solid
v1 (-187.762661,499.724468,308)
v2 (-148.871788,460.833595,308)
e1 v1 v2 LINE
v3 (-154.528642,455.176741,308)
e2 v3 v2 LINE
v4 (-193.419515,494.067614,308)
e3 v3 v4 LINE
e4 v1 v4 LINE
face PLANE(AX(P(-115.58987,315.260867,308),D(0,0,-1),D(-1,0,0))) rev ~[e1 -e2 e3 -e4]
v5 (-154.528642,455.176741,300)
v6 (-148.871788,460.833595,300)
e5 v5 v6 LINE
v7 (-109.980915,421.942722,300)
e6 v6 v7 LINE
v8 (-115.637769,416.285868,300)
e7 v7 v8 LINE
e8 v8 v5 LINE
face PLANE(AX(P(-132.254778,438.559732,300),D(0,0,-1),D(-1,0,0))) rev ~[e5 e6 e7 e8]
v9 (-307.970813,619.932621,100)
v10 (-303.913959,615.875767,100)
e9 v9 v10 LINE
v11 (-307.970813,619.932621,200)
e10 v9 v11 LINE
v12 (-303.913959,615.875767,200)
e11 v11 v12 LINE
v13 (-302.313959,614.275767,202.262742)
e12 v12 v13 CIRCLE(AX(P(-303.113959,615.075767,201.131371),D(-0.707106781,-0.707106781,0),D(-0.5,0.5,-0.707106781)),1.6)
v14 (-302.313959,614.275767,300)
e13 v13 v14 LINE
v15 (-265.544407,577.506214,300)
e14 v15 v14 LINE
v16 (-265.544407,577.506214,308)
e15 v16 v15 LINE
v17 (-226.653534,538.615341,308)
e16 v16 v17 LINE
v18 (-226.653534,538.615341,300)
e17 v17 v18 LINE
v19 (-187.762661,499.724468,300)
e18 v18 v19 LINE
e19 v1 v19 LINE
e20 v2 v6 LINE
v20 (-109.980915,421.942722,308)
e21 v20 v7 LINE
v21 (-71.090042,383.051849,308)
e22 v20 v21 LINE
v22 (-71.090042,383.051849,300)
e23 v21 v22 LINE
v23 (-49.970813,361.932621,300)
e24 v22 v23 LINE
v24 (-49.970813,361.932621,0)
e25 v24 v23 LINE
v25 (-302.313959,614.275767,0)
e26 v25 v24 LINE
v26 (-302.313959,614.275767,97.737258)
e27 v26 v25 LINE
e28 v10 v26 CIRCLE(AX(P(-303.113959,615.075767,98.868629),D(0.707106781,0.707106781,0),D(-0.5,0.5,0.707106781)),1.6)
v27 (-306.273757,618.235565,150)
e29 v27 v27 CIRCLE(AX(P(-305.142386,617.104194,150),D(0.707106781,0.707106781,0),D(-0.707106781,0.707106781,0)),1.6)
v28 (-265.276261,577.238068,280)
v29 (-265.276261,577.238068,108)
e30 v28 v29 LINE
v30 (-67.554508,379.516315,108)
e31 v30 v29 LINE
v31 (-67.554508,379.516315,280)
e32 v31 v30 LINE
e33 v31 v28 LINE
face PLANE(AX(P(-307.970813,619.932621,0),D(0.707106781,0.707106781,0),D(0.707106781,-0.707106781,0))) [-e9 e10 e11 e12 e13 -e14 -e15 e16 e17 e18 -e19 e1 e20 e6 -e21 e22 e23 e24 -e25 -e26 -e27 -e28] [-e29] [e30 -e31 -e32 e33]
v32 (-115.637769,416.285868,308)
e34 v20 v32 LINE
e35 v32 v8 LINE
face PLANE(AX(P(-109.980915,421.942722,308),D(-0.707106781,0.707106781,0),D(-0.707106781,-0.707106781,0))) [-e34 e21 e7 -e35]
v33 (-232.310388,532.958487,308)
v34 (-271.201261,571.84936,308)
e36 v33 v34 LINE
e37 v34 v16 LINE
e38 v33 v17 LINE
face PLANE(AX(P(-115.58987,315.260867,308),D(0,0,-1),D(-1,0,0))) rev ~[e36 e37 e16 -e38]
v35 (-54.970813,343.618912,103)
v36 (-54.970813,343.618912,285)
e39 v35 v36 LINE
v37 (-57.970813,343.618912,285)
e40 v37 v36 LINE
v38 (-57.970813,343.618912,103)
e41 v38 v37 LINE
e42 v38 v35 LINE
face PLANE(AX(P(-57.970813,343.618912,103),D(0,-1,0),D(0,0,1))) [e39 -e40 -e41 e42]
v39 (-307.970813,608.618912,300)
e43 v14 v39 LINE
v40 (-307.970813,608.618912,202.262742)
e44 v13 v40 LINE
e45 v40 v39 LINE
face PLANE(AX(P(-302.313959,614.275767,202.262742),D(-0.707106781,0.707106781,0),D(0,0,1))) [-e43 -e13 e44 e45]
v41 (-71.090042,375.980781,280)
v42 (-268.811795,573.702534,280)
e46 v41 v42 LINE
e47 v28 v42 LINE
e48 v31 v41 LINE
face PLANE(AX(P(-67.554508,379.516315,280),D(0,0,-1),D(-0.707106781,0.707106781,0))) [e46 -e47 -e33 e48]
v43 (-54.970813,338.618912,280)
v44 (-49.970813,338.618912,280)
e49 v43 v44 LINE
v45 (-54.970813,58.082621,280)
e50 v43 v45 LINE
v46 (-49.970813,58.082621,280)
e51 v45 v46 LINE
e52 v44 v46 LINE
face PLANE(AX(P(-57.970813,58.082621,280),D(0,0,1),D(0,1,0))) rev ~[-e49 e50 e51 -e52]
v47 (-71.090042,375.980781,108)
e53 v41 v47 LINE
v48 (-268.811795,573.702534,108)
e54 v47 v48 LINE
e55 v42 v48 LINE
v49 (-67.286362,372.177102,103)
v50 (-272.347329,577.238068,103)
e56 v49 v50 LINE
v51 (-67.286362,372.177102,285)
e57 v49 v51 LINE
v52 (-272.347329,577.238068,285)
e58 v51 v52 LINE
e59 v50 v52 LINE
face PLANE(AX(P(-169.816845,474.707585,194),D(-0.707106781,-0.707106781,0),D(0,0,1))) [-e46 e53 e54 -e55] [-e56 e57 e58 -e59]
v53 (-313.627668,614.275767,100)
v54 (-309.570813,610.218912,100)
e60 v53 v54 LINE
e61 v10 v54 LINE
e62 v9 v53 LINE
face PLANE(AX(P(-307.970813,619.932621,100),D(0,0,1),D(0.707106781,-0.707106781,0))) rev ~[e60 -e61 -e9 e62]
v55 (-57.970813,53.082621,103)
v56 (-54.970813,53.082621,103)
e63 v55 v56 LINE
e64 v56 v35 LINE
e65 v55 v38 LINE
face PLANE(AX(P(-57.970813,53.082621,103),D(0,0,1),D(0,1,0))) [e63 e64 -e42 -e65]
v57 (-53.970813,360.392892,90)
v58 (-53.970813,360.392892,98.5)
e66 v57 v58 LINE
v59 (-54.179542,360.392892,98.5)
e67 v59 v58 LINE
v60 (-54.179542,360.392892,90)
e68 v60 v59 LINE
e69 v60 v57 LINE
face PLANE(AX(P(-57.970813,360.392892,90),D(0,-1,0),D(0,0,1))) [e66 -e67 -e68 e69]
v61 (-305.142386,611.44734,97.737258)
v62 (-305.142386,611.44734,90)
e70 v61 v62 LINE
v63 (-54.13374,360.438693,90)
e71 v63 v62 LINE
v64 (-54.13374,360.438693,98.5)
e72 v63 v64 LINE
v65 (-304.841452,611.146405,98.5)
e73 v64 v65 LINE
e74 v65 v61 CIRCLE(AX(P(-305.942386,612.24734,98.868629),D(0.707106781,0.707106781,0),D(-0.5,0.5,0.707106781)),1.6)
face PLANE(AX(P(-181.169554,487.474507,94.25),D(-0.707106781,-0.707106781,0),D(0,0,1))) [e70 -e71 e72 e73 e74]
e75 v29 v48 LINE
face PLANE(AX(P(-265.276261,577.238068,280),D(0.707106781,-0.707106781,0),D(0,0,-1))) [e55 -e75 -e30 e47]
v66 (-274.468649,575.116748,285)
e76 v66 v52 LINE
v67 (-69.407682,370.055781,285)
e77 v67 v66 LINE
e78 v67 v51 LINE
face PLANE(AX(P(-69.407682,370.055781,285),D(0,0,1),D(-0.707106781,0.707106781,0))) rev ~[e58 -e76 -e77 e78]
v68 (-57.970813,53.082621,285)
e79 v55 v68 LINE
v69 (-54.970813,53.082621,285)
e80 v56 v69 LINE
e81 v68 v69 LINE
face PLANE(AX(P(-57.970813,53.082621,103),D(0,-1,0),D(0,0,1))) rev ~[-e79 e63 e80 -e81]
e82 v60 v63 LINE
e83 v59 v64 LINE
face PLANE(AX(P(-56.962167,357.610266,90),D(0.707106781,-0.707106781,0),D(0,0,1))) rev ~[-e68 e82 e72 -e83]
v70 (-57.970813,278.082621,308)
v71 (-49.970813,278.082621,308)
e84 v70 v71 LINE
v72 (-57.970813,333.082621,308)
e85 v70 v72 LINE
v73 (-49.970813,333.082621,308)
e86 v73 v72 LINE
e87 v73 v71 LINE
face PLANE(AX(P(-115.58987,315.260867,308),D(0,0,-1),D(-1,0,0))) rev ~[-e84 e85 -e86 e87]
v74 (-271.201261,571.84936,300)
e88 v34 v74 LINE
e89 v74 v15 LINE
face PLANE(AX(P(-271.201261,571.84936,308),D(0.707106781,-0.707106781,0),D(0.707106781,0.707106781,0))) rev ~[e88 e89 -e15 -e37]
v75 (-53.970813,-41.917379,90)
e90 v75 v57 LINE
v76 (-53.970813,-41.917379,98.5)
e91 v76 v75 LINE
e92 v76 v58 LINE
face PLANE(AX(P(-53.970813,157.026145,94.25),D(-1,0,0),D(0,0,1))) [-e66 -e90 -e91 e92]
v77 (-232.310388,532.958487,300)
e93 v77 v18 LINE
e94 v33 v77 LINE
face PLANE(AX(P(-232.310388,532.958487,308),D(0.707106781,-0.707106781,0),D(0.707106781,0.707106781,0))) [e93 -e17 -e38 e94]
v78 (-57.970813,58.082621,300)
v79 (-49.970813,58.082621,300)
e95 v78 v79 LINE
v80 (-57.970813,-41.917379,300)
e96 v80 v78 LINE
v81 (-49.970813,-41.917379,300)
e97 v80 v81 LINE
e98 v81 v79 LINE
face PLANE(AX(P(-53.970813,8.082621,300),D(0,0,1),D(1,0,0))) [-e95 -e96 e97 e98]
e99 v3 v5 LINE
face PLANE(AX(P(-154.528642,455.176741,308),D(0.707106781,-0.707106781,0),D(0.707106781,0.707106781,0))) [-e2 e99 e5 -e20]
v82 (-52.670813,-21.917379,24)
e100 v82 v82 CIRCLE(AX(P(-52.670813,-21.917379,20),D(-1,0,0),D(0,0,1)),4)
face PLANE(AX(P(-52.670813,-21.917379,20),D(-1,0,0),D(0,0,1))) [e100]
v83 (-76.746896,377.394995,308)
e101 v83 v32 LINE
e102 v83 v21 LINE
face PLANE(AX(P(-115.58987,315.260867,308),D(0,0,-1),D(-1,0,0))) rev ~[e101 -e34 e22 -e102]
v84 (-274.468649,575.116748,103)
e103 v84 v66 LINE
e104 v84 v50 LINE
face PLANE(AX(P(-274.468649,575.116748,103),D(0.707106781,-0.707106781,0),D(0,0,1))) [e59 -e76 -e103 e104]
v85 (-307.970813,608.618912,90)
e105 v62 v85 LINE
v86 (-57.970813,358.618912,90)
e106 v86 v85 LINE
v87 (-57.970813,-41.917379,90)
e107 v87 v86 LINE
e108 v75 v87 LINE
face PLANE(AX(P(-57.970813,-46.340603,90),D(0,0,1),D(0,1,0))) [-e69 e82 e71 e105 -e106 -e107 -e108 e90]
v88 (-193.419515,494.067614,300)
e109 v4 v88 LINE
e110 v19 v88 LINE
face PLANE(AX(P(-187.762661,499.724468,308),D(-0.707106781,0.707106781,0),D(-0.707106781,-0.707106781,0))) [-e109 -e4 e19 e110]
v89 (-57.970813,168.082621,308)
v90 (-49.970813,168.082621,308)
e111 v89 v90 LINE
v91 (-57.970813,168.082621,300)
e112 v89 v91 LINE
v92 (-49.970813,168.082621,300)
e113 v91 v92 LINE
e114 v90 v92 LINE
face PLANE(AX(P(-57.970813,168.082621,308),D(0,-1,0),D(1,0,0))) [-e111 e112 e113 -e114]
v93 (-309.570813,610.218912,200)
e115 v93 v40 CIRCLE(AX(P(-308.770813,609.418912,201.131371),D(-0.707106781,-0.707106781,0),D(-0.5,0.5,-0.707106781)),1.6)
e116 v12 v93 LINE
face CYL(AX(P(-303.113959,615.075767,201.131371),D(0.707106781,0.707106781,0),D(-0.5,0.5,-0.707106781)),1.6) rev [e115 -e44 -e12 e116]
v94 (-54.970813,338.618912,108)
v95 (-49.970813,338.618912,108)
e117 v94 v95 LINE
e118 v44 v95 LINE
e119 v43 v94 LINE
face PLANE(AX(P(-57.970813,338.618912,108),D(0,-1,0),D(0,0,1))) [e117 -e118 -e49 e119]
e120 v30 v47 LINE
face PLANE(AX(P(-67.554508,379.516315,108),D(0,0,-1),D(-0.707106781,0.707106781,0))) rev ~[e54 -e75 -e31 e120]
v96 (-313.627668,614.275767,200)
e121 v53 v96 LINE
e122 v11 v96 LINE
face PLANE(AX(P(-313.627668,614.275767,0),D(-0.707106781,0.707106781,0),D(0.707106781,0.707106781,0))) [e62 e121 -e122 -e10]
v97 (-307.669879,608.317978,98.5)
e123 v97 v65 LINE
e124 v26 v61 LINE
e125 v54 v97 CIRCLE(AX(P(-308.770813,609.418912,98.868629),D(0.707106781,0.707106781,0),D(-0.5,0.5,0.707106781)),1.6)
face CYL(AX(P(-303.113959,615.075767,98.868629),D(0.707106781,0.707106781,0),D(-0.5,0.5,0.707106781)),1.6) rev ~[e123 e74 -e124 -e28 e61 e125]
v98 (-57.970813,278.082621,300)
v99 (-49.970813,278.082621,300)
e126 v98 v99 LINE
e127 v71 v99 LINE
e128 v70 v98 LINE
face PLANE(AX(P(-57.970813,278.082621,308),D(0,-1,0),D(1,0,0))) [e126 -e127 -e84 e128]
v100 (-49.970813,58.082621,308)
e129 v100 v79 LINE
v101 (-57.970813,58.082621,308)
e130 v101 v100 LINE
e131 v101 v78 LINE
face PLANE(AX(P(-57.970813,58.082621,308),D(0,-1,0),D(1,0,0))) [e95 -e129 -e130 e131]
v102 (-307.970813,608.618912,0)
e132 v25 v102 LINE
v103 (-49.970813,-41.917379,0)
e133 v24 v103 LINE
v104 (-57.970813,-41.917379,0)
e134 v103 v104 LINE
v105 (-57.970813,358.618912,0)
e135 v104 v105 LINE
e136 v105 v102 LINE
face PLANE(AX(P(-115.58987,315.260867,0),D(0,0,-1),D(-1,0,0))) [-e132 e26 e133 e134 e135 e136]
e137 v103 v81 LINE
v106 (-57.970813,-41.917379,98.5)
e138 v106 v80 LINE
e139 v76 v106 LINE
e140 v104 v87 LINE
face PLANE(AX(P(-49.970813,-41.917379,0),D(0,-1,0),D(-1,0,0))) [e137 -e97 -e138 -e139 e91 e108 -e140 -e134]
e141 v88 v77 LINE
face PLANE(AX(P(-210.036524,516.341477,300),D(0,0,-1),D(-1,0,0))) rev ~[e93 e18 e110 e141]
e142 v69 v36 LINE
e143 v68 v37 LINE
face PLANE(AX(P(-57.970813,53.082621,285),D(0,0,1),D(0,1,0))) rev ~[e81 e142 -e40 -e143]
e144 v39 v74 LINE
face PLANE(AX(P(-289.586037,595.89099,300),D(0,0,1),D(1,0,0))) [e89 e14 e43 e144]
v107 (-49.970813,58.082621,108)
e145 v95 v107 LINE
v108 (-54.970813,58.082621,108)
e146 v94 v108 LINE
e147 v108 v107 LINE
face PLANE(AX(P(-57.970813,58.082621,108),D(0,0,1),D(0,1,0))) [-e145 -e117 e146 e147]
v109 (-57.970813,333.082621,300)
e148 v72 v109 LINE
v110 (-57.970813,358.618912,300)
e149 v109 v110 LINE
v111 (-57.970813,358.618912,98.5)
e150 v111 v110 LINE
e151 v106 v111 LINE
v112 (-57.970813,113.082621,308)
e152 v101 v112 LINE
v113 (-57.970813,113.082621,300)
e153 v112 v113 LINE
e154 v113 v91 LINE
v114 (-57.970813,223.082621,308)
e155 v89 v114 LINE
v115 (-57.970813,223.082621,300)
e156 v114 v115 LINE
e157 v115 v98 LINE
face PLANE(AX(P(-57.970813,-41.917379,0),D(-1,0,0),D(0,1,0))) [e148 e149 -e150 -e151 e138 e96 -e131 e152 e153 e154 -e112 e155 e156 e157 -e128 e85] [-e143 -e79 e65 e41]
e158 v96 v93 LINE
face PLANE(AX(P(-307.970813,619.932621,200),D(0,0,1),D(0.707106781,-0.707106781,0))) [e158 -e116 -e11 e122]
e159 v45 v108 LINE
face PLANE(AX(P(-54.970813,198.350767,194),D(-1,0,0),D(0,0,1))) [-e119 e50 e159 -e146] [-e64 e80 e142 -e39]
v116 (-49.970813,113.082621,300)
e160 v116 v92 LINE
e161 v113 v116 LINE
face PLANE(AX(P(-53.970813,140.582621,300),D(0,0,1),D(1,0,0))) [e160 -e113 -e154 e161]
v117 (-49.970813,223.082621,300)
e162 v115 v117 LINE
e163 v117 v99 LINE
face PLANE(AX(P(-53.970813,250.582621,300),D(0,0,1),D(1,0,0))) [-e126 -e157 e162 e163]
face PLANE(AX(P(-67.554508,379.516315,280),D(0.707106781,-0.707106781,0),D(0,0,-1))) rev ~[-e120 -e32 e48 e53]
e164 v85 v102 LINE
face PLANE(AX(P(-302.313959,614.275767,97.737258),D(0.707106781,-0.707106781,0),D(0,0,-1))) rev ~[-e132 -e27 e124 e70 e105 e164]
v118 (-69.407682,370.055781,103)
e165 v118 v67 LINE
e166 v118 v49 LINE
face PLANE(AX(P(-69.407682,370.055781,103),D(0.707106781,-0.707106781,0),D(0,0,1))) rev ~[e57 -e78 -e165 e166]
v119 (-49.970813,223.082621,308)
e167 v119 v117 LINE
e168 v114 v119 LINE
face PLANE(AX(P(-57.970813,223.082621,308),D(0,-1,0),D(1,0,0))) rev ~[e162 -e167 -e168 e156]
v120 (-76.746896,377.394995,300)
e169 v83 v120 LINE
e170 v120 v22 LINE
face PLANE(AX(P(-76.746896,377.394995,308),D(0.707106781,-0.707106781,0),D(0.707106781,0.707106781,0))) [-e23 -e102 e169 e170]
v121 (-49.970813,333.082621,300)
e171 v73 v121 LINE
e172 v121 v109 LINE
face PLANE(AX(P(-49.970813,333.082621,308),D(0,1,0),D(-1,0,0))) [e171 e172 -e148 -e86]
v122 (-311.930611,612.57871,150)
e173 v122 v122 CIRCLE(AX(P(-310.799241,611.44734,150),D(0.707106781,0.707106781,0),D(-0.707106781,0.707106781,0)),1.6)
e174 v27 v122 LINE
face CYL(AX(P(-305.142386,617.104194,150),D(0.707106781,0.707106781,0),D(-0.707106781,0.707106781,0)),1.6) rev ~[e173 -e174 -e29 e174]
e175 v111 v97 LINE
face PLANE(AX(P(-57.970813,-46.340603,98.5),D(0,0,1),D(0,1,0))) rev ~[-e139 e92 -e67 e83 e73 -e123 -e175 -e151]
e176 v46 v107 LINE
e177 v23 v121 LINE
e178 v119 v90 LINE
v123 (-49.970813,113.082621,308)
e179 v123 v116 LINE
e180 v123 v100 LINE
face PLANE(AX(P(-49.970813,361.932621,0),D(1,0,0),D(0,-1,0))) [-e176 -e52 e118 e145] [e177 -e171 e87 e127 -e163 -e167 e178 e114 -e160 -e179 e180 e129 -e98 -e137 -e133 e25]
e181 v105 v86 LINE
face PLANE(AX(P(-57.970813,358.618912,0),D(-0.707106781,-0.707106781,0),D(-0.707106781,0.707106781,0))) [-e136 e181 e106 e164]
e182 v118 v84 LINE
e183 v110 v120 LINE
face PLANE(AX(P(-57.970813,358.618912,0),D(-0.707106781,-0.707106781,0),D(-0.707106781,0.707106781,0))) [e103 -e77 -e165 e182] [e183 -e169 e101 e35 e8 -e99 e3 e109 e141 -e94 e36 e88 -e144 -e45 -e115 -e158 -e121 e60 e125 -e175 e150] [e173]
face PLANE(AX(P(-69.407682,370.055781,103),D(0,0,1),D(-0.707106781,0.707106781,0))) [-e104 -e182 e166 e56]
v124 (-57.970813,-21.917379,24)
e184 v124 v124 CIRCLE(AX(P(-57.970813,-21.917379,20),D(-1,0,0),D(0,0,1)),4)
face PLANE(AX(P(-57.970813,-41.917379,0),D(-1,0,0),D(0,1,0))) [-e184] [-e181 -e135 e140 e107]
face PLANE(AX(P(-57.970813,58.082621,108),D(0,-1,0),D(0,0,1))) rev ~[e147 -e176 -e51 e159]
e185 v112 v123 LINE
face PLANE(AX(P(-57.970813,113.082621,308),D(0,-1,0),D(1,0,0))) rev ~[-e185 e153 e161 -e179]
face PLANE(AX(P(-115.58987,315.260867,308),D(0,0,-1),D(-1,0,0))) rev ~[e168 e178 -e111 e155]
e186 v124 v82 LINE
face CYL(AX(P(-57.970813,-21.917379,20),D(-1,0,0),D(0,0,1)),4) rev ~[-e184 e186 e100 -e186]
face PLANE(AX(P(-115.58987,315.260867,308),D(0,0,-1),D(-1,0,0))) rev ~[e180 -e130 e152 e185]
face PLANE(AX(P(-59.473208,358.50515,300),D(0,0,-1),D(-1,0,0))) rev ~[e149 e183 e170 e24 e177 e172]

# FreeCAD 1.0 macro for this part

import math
import FreeCAD as App
import Part
import Sketcher
from FreeCAD import Vector
Q = App.Units.Quantity

doc = App.newDocument("Part")
params = doc.addObject("Spreadsheet::Sheet", "Params")
for row, (alias, value) in enumerate([
    ("sketch1_width", "8 mm"),
    ("sketch1_length", "8 mm"),
    ("sketch1_height", "403.85 mm"),
    ("pad1_length", "308 mm"),
    ("sketch2_width", "8 mm"),
    ("sketch2_height", "100 mm"),
    ("sketch2_height2", "55 mm"),
    ("sketch2_length", "8 mm"),
    ("sketch2_length2", "60 mm"),
    ("pocket1_length", "8 mm"),
    ("sketch3_height", "172 mm"),
    ("pocket2_length", "532 mm"),
    ("sketch4_diameter", "3.2 mm"),
    ("sketch4_width", "100 mm"),
    ("sketch4_width2", "172 mm"),
    ("sketch4_height", "8 mm"),
    ("pocket3_length", "8 mm"),
    ("sketch5_height", "182 mm"),
    ("pocket4_length", "3 mm"),
    ("sketch6_width", "182 mm"),
    ("sketch6_height", "290 mm"),
    ("pocket5_length", "3 mm"),
    ("sketch7_diameter", "8 mm"),
    ("pocket6_length", "5.3 mm"),
    ("sketch8_height", "8.5 mm"),
    ("pocket7_length", "4 mm"),
    ("sketch9_width", "8.5 mm"),
    ("pocket8_length", "4 mm"),
], start=1):
    params.set(f"A{row}", alias)
    params.set(f"B{row}", "=" + value)
    params.setAlias(f"B{row}", alias)

body = doc.addObject("PartDesign::Body", "Body")

# Sketch on XY plane
sketch1 = body.newObject("Sketcher::SketchObject", "Sketch")
sketch1.AttachmentSupport = (doc.getObject("XY_Plane"), [""])
sketch1.MapMode = "FlatFace"
sketch1.addGeometry([
    Part.LineSegment(Vector(-57.970813, -41.917379, 0), Vector(-49.970813, -41.917379, 0)),  # 0
    Part.LineSegment(Vector(-49.970813, -41.917379, 0), Vector(-49.970813, 361.932621, 0)),  # 1
    Part.LineSegment(Vector(-49.970813, 361.932621, 0), Vector(-307.970813, 619.932621, 0)),  # 2
    Part.LineSegment(Vector(-307.970813, 619.932621, 0), Vector(-313.627668, 614.275767, 0)),  # 3
    Part.LineSegment(Vector(-313.627668, 614.275767, 0), Vector(-57.970813, 358.618912, 0)),  # 4
    Part.LineSegment(Vector(-57.970813, 358.618912, 0), Vector(-57.970813, -41.917379, 0)),  # 5
], False)
sketch1.addConstraint([
    Sketcher.Constraint("Coincident", 0, 2, 1, 1),
    Sketcher.Constraint("Coincident", 1, 2, 2, 1),
    Sketcher.Constraint("Coincident", 2, 2, 3, 1),
    Sketcher.Constraint("Coincident", 3, 2, 4, 1),
    Sketcher.Constraint("Coincident", 4, 2, 5, 1),
    Sketcher.Constraint("Coincident", 5, 2, 0, 1),
    Sketcher.Constraint("Horizontal", 0),
    Sketcher.Constraint("Vertical", 1),
    Sketcher.Constraint("Vertical", 5),
    Sketcher.Constraint("Perpendicular", 2, 3),
    Sketcher.Constraint("Perpendicular", 3, 4),
    Sketcher.Constraint("DistanceX", 0, 1, 0, 2, Q("8 mm")),
    Sketcher.Constraint("Angle", 2, Q("135 deg")),
    Sketcher.Constraint("Distance", 3, Q("8 mm")),
    Sketcher.Constraint("DistanceX", 2, 2, 1, 2, Q("258 mm")),
    Sketcher.Constraint("DistanceY", 1, 1, 1, 2, Q("403.85 mm")),
    Sketcher.Constraint("DistanceY", 0, 2, -1, 1, Q("41.917379 mm")),
    Sketcher.Constraint("DistanceX", 0, 2, -1, 1, Q("49.970813 mm")),
])
sketch1.setExpression("Constraints[11]", "Params.sketch1_width")
sketch1.setExpression("Constraints[13]", "Params.sketch1_length")
sketch1.setExpression("Constraints[15]", "Params.sketch1_height")
pad1 = body.newObject("PartDesign::Pad", "Pad")
pad1.Profile = sketch1
pad1.setExpression("Length", "Params.pad1_length")

# Sketch on XY plane
sketch2 = body.newObject("Sketcher::SketchObject", "Sketch001")
sketch2.AttachmentSupport = (doc.getObject("XY_Plane"), [""])
sketch2.MapMode = "FlatFace"
sketch2.AttachmentOffset = App.Placement(Vector(0, 0, 308), App.Rotation())
sketch2.addGeometry([
    Part.LineSegment(Vector(-57.970813, 58.082621, 0), Vector(-57.970813, -41.917379, 0)),  # 0
    Part.LineSegment(Vector(-57.970813, -41.917379, 0), Vector(-49.970813, -41.917379, 0)),  # 1
    Part.LineSegment(Vector(-49.970813, -41.917379, 0), Vector(-49.970813, 58.082621, 0)),  # 2
    Part.LineSegment(Vector(-49.970813, 58.082621, 0), Vector(-57.970813, 58.082621, 0)),  # 3
    Part.LineSegment(Vector(-271.201261, 571.84936, 0), Vector(-265.544407, 577.506214, 0)),  # 4
    Part.LineSegment(Vector(-265.544407, 577.506214, 0), Vector(-307.970813, 619.932621, 0)),  # 5
    Part.LineSegment(Vector(-307.970813, 619.932621, 0), Vector(-313.627668, 614.275767, 0)),  # 6
    Part.LineSegment(Vector(-313.627668, 614.275767, 0), Vector(-271.201261, 571.84936, 0)),  # 7
    Part.LineSegment(Vector(-57.970813, 168.082621, 0), Vector(-57.970813, 113.082621, 0)),  # 8
    Part.LineSegment(Vector(-57.970813, 113.082621, 0), Vector(-49.970813, 113.082621, 0)),  # 9
    Part.LineSegment(Vector(-49.970813, 113.082621, 0), Vector(-49.970813, 168.082621, 0)),  # 10
    Part.LineSegment(Vector(-49.970813, 168.082621, 0), Vector(-57.970813, 168.082621, 0)),  # 11
    Part.LineSegment(Vector(-57.970813, 278.082621, 0), Vector(-57.970813, 223.082621, 0)),  # 12
    Part.LineSegment(Vector(-57.970813, 223.082621, 0), Vector(-49.970813, 223.082621, 0)),  # 13
    Part.LineSegment(Vector(-49.970813, 223.082621, 0), Vector(-49.970813, 278.082621, 0)),  # 14
    Part.LineSegment(Vector(-49.970813, 278.082621, 0), Vector(-57.970813, 278.082621, 0)),  # 15
    Part.LineSegment(Vector(-226.653534, 538.615341, 0), Vector(-232.310388, 532.958487, 0)),  # 16
    Part.LineSegment(Vector(-232.310388, 532.958487, 0), Vector(-193.419515, 494.067614, 0)),  # 17
    Part.LineSegment(Vector(-193.419515, 494.067614, 0), Vector(-187.762661, 499.724468, 0)),  # 18
    Part.LineSegment(Vector(-187.762661, 499.724468, 0), Vector(-226.653534, 538.615341, 0)),  # 19
    Part.LineSegment(Vector(-148.871788, 460.833595, 0), Vector(-154.528642, 455.176741, 0)),  # 20
    Part.LineSegment(Vector(-154.528642, 455.176741, 0), Vector(-115.637769, 416.285868, 0)),  # 21
    Part.LineSegment(Vector(-115.637769, 416.285868, 0), Vector(-109.980915, 421.942722, 0)),  # 22
    Part.LineSegment(Vector(-109.980915, 421.942722, 0), Vector(-148.871788, 460.833595, 0)),  # 23
    Part.LineSegment(Vector(-71.090042, 383.051849, 0), Vector(-76.746896, 377.394995, 0)),  # 24
    Part.LineSegment(Vector(-76.746896, 377.394995, 0), Vector(-57.970813, 358.618912, 0)),  # 25
    Part.LineSegment(Vector(-57.970813, 358.618912, 0), Vector(-57.970813, 333.082621, 0)),  # 26
    Part.LineSegment(Vector(-57.970813, 333.082621, 0), Vector(-49.970813, 333.082621, 0)),  # 27
    Part.LineSegment(Vector(-49.970813, 333.082621, 0), Vector(-49.970813, 361.932621, 0)),  # 28
    Part.LineSegment(Vector(-49.970813, 361.932621, 0), Vector(-71.090042, 383.051849, 0)),  # 29
], False)
sketch2.addConstraint([
    Sketcher.Constraint("Coincident", 0, 2, 1, 1),
    Sketcher.Constraint("Coincident", 1, 2, 2, 1),
    Sketcher.Constraint("Coincident", 2, 2, 3, 1),
    Sketcher.Constraint("Coincident", 3, 2, 0, 1),
    Sketcher.Constraint("Coincident", 4, 2, 5, 1),
    Sketcher.Constraint("Coincident", 5, 2, 6, 1),
    Sketcher.Constraint("Coincident", 6, 2, 7, 1),
    Sketcher.Constraint("Coincident", 7, 2, 4, 1),
    Sketcher.Constraint("Coincident", 8, 2, 9, 1),
    Sketcher.Constraint("Coincident", 9, 2, 10, 1),
    Sketcher.Constraint("Coincident", 10, 2, 11, 1),
    Sketcher.Constraint("Coincident", 11, 2, 8, 1),
    Sketcher.Constraint("Coincident", 12, 2, 13, 1),
    Sketcher.Constraint("Coincident", 13, 2, 14, 1),
    Sketcher.Constraint("Coincident", 14, 2, 15, 1),
    Sketcher.Constraint("Coincident", 15, 2, 12, 1),
    Sketcher.Constraint("Coincident", 16, 2, 17, 1),
    Sketcher.Constraint("Coincident", 17, 2, 18, 1),
    Sketcher.Constraint("Coincident", 18, 2, 19, 1),
    Sketcher.Constraint("Coincident", 19, 2, 16, 1),
    Sketcher.Constraint("Coincident", 20, 2, 21, 1),
    Sketcher.Constraint("Coincident", 21, 2, 22, 1),
    Sketcher.Constraint("Coincident", 22, 2, 23, 1),
    Sketcher.Constraint("Coincident", 23, 2, 20, 1),
    Sketcher.Constraint("Coincident", 24, 2, 25, 1),
    Sketcher.Constraint("Coincident", 25, 2, 26, 1),
    Sketcher.Constraint("Coincident", 26, 2, 27, 1),
    Sketcher.Constraint("Coincident", 27, 2, 28, 1),
    Sketcher.Constraint("Coincident", 28, 2, 29, 1),
    Sketcher.Constraint("Coincident", 29, 2, 24, 1),
    Sketcher.Constraint("Vertical", 0),
    Sketcher.Constraint("Horizontal", 1),
    Sketcher.Constraint("Vertical", 2),
    Sketcher.Constraint("Horizontal", 3),
    Sketcher.Constraint("Vertical", 8),
    Sketcher.Constraint("Horizontal", 9),
    Sketcher.Constraint("Vertical", 10),
    Sketcher.Constraint("Horizontal", 11),
    Sketcher.Constraint("Vertical", 12),
    Sketcher.Constraint("Horizontal", 13),
    Sketcher.Constraint("Vertical", 14),
    Sketcher.Constraint("Horizontal", 15),
    Sketcher.Constraint("Vertical", 26),
    Sketcher.Constraint("Horizontal", 27),
    Sketcher.Constraint("Vertical", 28),
    Sketcher.Constraint("Perpendicular", 4, 5),
    Sketcher.Constraint("Perpendicular", 5, 6),
    Sketcher.Constraint("Perpendicular", 6, 7),
    Sketcher.Constraint("Perpendicular", 7, 16),
    Sketcher.Constraint("Perpendicular", 16, 17),
    Sketcher.Constraint("Perpendicular", 17, 18),
    Sketcher.Constraint("Perpendicular", 18, 19),
    Sketcher.Constraint("Perpendicular", 19, 20),
    Sketcher.Constraint("Perpendicular", 20, 21),
    Sketcher.Constraint("Perpendicular", 21, 22),
    Sketcher.Constraint("Perpendicular", 22, 23),
    Sketcher.Constraint("Perpendicular", 23, 24),
    Sketcher.Constraint("Perpendicular", 24, 25),
    Sketcher.Constraint("Parallel", 25, 29),
    Sketcher.Constraint("Vertical", 3, 2, 8, 2),
    Sketcher.Constraint("Vertical", 2, 2, 9, 2),
    Sketcher.Constraint("Vertical", 11, 2, 12, 2),
    Sketcher.Constraint("Vertical", 10, 2, 13, 2),
    Sketcher.Constraint("Vertical", 15, 2, 25, 2),
    Sketcher.Constraint("Vertical", 14, 2, 27, 2),
    Sketcher.Constraint("Equal", 10, 12),
    Sketcher.Constraint("Equal", 6, 16),
    Sketcher.Constraint("Equal", 18, 20),
    Sketcher.Constraint("Equal", 19, 21),
    Sketcher.Constraint("Equal", 22, 24),
    Sketcher.Constraint("DistanceX", 1, 1, 1, 2, Q("8 mm")),
    Sketcher.Constraint("DistanceY", 0, 2, 0, 1, Q("100 mm")),
    Sketcher.Constraint("DistanceY", 8, 2, 8, 1, Q("55 mm")),
    Sketcher.Constraint("Angle", 4, Q("45 deg")),
    Sketcher.Constraint("Distance", 4, Q("8 mm")),
    Sketcher.Constraint("Distance", 5, Q("60 mm")),
    Sketcher.Constraint("Distance", 17, Q("55 mm")),
    Sketcher.Constraint("DistanceX", 5, 2, 3, 2, Q("250 mm")),
    Sketcher.Constraint("DistanceY", 3, 2, 8, 2, Q("55 mm")),
    Sketcher.Constraint("DistanceY", 11, 2, 12, 2, Q("55 mm")),
    Sketcher.Constraint("DistanceY", 15, 2, 26, 2, Q("55 mm")),
    Sketcher.Constraint("DistanceY", 28, 1, 28, 2, Q("28.85 mm")),
    Sketcher.Constraint("DistanceY", 3, 2, 5, 2, Q("561.85 mm")),
    Sketcher.Constraint("Distance", 29, Q("29.867099 mm")),
    Sketcher.Constraint("DistanceY", 17, 2, 4, 2, Q("83.4386 mm")),
    Sketcher.Constraint("DistanceX", 5, 2, 17, 2, Q("114.551299 mm")),
    Sketcher.Constraint("DistanceY", 20, 2, 19, 2, Q("83.4386 mm")),
    Sketcher.Constraint("DistanceX", 17, 2, 22, 2, Q("83.4386 mm")),
    Sketcher.Constraint("DistanceY", 0, 2, -1, 1, Q("41.917379 mm")),
    Sketcher.Constraint("DistanceX", 7, 2, -1, 1, Q("271.201261 mm")),
])
sketch2.setExpression("Constraints[70]", "Params.sketch2_width")
sketch2.setExpression("Constraints[71]", "Params.sketch2_height")
sketch2.setExpression("Constraints[72]", "Params.sketch2_height2")
sketch2.setExpression("Constraints[74]", "Params.sketch2_length")
sketch2.setExpression("Constraints[75]", "Params.sketch2_length2")
pocket1 = body.newObject("PartDesign::Pocket", "Pocket")
pocket1.Profile = sketch2
pocket1.setExpression("Length", "Params.pocket1_length")

# Sketch on YZ plane
sketch3 = body.newObject("Sketcher::SketchObject", "Sketch002")
sketch3.AttachmentSupport = (doc.getObject("YZ_Plane"), [""])
sketch3.MapMode = "FlatFace"
sketch3.AttachmentOffset = App.Placement(Vector(0, 0, -57.970813), App.Rotation())
sketch3.addGeometry([
    Part.LineSegment(Vector(338.618912, 108, 0), Vector(58.082621, 108, 0)),
    Part.LineSegment(Vector(58.082621, 108, 0), Vector(58.082621, 280, 0)),
    Part.LineSegment(Vector(58.082621, 280, 0), Vector(338.618912, 280, 0)),
    Part.LineSegment(Vector(338.618912, 280, 0), Vector(338.618912, 108, 0)),
], False)
sketch3.addConstraint([
    Sketcher.Constraint("Coincident", 0, 2, 1, 1),
    Sketcher.Constraint("Coincident", 1, 2, 2, 1),
    Sketcher.Constraint("Coincident", 2, 2, 3, 1),
    Sketcher.Constraint("Coincident", 3, 2, 0, 1),
    Sketcher.Constraint("Horizontal", 0),
    Sketcher.Constraint("Vertical", 1),
    Sketcher.Constraint("Horizontal", 2),
    Sketcher.Constraint("Vertical", 3),
    Sketcher.Constraint("DistanceY", 1, 1, 1, 2, Q("172 mm")),
    Sketcher.Constraint("DistanceY", -1, 1, 0, 2, Q("108 mm")),
    Sketcher.Constraint("DistanceX", 0, 2, 0, 1, Q("280.536292 mm")),
    Sketcher.Constraint("DistanceX", -1, 1, 0, 2, Q("58.082621 mm")),
])
sketch3.setExpression("Constraints[8]", "Params.sketch3_height")
pocket2 = body.newObject("PartDesign::Pocket", "Pocket001")
pocket2.Profile = sketch3
pocket2.setExpression("Length", "Params.pocket2_length")
pocket2.Reversed = True

# Sketch on an angled plane
sketch4 = body.newObject("Sketcher::SketchObject", "Sketch003")
sketch4.Placement = App.Placement(Vector(155.980904, 155.980904, 0), App.Rotation(Vector(0, 0, -1), Vector(-0.707106781, 0.707106781, 0), Vector(0.707106781, 0.707106781, 0), "ZXY"))
sketch4.addGeometry([
    Part.Circle(Vector(-150, 652.12681, 0), Vector(0, 0, 1), 1.6),  # 0
    Part.LineSegment(Vector(-300, 648.12681, 0), Vector(-202.262742, 648.12681, 0)),  # 1
    Part.ArcOfCircle(Part.Circle(Vector(-201.131371, 649.258181, 0), Vector(0, 0, 1), 1.6), math.radians(-135), math.radians(45)),  # 2
    Part.LineSegment(Vector(-200, 650.389552, 0), Vector(-200, 656.12681, 0)),  # 3
    Part.LineSegment(Vector(-200, 656.12681, 0), Vector(-300, 656.12681, 0)),  # 4
    Part.LineSegment(Vector(-300, 656.12681, 0), Vector(-300, 648.12681, 0)),  # 5
    Part.LineSegment(Vector(-100, 656.12681, 0), Vector(-100, 650.389552, 0)),  # 6
    Part.ArcOfCircle(Part.Circle(Vector(-98.868629, 649.258181, 0), Vector(0, 0, 1), 1.6), math.radians(135), math.radians(315)),  # 7
    Part.LineSegment(Vector(-97.737258, 648.12681, 0), Vector(0, 648.12681, 0)),  # 8
    Part.LineSegment(Vector(0, 648.12681, 0), Vector(0, 656.12681, 0)),  # 9
    Part.LineSegment(Vector(0, 656.12681, 0), Vector(-100, 656.12681, 0)),  # 10
    Part.LineSegment(Vector(-280, 595.747595, 0), Vector(-280, 316.126811, 0)),  # 11
    Part.LineSegment(Vector(-280, 316.126811, 0), Vector(-108, 316.126811, 0)),  # 12
    Part.LineSegment(Vector(-108, 316.126811, 0), Vector(-108, 595.747595, 0)),  # 13
    Part.LineSegment(Vector(-108, 595.747595, 0), Vector(-280, 595.747595, 0)),  # 14
], False)
sketch4.addConstraint([
    Sketcher.Constraint("Coincident", 1, 2, 2, 1),
    Sketcher.Constraint("Coincident", 2, 2, 3, 1),
    Sketcher.Constraint("Coincident", 3, 2, 4, 1),
    Sketcher.Constraint("Coincident", 4, 2, 5, 1),
    Sketcher.Constraint("Coincident", 5, 2, 1, 1),
    Sketcher.Constraint("Coincident", 6, 2, 7, 1),
    Sketcher.Constraint("Coincident", 7, 2, 8, 1),
    Sketcher.Constraint("Coincident", 8, 2, 9, 1),
    Sketcher.Constraint("Coincident", 9, 2, 10, 1),
    Sketcher.Constraint("Coincident", 10, 2, 6, 1),
    Sketcher.Constraint("Coincident", 11, 2, 12, 1),
    Sketcher.Constraint("Coincident", 12, 2, 13, 1),
    Sketcher.Constraint("Coincident", 13, 2, 14, 1),
    Sketcher.Constraint("Coincident", 14, 2, 11, 1),
    Sketcher.Constraint("Horizontal", 1),
    Sketcher.Constraint("Vertical", 3),
    Sketcher.Constraint("Horizontal", 4),
    Sketcher.Constraint("Vertical", 5),
    Sketcher.Constraint("Vertical", 6),
    Sketcher.Constraint("Horizontal", 8),
    Sketcher.Constraint("Vertical", 9),
    Sketcher.Constraint("Horizontal", 10),
    Sketcher.Constraint("Vertical", 11),
    Sketcher.Constraint("Horizontal", 12),
    Sketcher.Constraint("Vertical", 13),
    Sketcher.Constraint("Horizontal", 14),
    Sketcher.Constraint("Equal", 0, 2),
    Sketcher.Constraint("Equal", 2, 7),
    Sketcher.Constraint("PointOnObject", 8, 2, -2),
    Sketcher.Constraint("Horizontal", 2, 3, 7, 3),
    Sketcher.Constraint("Horizontal", 2, 2, 6, 2),
    Sketcher.Constraint("Horizontal", 5, 2, 7, 2),
    Sketcher.Constraint("Horizontal", 4, 2, 9, 2),
    Sketcher.Constraint("Equal", 1, 8),
    Sketcher.Constraint("Diameter", 0, Q("3.2 mm")),
    Sketcher.Constraint("DistanceX", 4, 2, 4, 1, Q("100 mm")),
    Sketcher.Constraint("DistanceX", 12, 1, 12, 2, Q("172 mm")),
    Sketcher.Constraint("DistanceY", 5, 2, 5, 1, Q("8 mm")),
    Sketcher.Constraint("DistanceX", 0, 3, -1, 1, Q("150 mm")),
    Sketcher.Constraint("DistanceX", 2, 2, -1, 1, Q("200 mm")),
    Sketcher.Constraint("DistanceX", 11, 2, -1, 1, Q("280 mm")),
    Sketcher.Constraint("DistanceY", 1, 2, 0, 3, Q("4 mm")),
    Sketcher.Constraint("DistanceY", 11, 2, 5, 2, Q("332 mm")),
    Sketcher.Constraint("DistanceX", 1, 1, 1, 2, Q("97.737258 mm")),
    Sketcher.Constraint("DistanceY", 11, 2, 11, 1, Q("279.620784 mm")),
    Sketcher.Constraint("DistanceY", -1, 1, 0, 3, Q("652.12681 mm")),
    Sketcher.Constraint("DistanceX", 2, 3, -1, 1, Q("201.131371 mm")),
])
sketch4.setExpression("Constraints[34]", "Params.sketch4_diameter")
sketch4.setExpression("Constraints[35]", "Params.sketch4_width")
sketch4.setExpression("Constraints[36]", "Params.sketch4_width2")
sketch4.setExpression("Constraints[37]", "Params.sketch4_height")
pocket3 = body.newObject("PartDesign::Pocket", "Pocket002")
pocket3.Profile = sketch4
pocket3.setExpression("Length", "Params.pocket3_length")

# Sketch on YZ plane
sketch5 = body.newObject("Sketcher::SketchObject", "Sketch004")
sketch5.AttachmentSupport = (doc.getObject("YZ_Plane"), [""])
sketch5.MapMode = "FlatFace"
sketch5.AttachmentOffset = App.Placement(Vector(0, 0, -57.970813), App.Rotation())
sketch5.addGeometry([
    Part.LineSegment(Vector(343.618912, 103, 0), Vector(53.082621, 103, 0)),
    Part.LineSegment(Vector(53.082621, 103, 0), Vector(53.082621, 285, 0)),
    Part.LineSegment(Vector(53.082621, 285, 0), Vector(343.618912, 285, 0)),
    Part.LineSegment(Vector(343.618912, 285, 0), Vector(343.618912, 103, 0)),
], False)
sketch5.addConstraint([
    Sketcher.Constraint("Coincident", 0, 2, 1, 1),
    Sketcher.Constraint("Coincident", 1, 2, 2, 1),
    Sketcher.Constraint("Coincident", 2, 2, 3, 1),
    Sketcher.Constraint("Coincident", 3, 2, 0, 1),
    Sketcher.Constraint("Horizontal", 0),
    Sketcher.Constraint("Vertical", 1),
    Sketcher.Constraint("Horizontal", 2),
    Sketcher.Constraint("Vertical", 3),
    Sketcher.Constraint("DistanceY", 1, 1, 1, 2, Q("182 mm")),
    Sketcher.Constraint("DistanceY", -1, 1, 0, 2, Q("103 mm")),
    Sketcher.Constraint("DistanceX", 0, 2, 0, 1, Q("290.536292 mm")),
    Sketcher.Constraint("DistanceX", -1, 1, 0, 2, Q("53.082621 mm")),
])
sketch5.setExpression("Constraints[8]", "Params.sketch5_height")
pocket4 = body.newObject("PartDesign::Pocket", "Pocket003")
pocket4.Profile = sketch5
pocket4.setExpression("Length", "Params.pocket4_length")
pocket4.Reversed = True

# Sketch on an angled plane
sketch6 = body.newObject("Sketcher::SketchObject", "Sketch005")
sketch6.Placement = App.Placement(Vector(150.324049, 150.324049, 0), App.Rotation(Vector(0, 0, 1), Vector(-0.707106781, 0.707106781, 0), Vector(-0.707106781, -0.707106781, 0), "ZXY"))
sketch6.addGeometry([
    Part.LineSegment(Vector(103, 600.747595, 0), Vector(103, 310.747595, 0)),
    Part.LineSegment(Vector(103, 310.747595, 0), Vector(285, 310.747595, 0)),
    Part.LineSegment(Vector(285, 310.747595, 0), Vector(285, 600.747595, 0)),
    Part.LineSegment(Vector(285, 600.747595, 0), Vector(103, 600.747595, 0)),
], False)
sketch6.addConstraint([
    Sketcher.Constraint("Coincident", 0, 2, 1, 1),
    Sketcher.Constraint("Coincident", 1, 2, 2, 1),
    Sketcher.Constraint("Coincident", 2, 2, 3, 1),
    Sketcher.Constraint("Coincident", 3, 2, 0, 1),
    Sketcher.Constraint("Vertical", 0),
    Sketcher.Constraint("Horizontal", 1),
    Sketcher.Constraint("Vertical", 2),
    Sketcher.Constraint("Horizontal", 3),
    Sketcher.Constraint("DistanceX", 1, 1, 1, 2, Q("182 mm")),
    Sketcher.Constraint("DistanceY", 0, 2, 0, 1, Q("290 mm")),
    Sketcher.Constraint("DistanceX", -1, 1, 0, 2, Q("103 mm")),
    Sketcher.Constraint("DistanceY", -1, 1, 0, 2, Q("310.747595 mm")),
])
sketch6.setExpression("Constraints[8]", "Params.sketch6_width")
sketch6.setExpression("Constraints[9]", "Params.sketch6_height")
pocket5 = body.newObject("PartDesign::Pocket", "Pocket004")
pocket5.Profile = sketch6
pocket5.setExpression("Length", "Params.pocket5_length")

# Sketch on YZ plane
sketch7 = body.newObject("Sketcher::SketchObject", "Sketch006")
sketch7.AttachmentSupport = (doc.getObject("YZ_Plane"), [""])
sketch7.MapMode = "FlatFace"
sketch7.AttachmentOffset = App.Placement(Vector(0, 0, -57.970813), App.Rotation())
sketch7.addGeometry(Part.Circle(Vector(-21.917379, 20, 0), Vector(0, 0, 1), 4), False)
sketch7.addConstraint([
    Sketcher.Constraint("Diameter", 0, Q("8 mm")),
    Sketcher.Constraint("DistanceY", -1, 1, 0, 3, Q("20 mm")),
    Sketcher.Constraint("DistanceX", 0, 3, -1, 1, Q("21.917379 mm")),
])
sketch7.setExpression("Constraints[0]", "Params.sketch7_diameter")
pocket6 = body.newObject("PartDesign::Pocket", "Pocket005")
pocket6.Profile = sketch7
pocket6.setExpression("Length", "Params.pocket6_length")
pocket6.Reversed = True

# Sketch on YZ plane
sketch8 = body.newObject("Sketcher::SketchObject", "Sketch007")
sketch8.AttachmentSupport = (doc.getObject("YZ_Plane"), [""])
sketch8.MapMode = "FlatFace"
sketch8.AttachmentOffset = App.Placement(Vector(0, 0, -57.970813), App.Rotation())
sketch8.addGeometry([
    Part.LineSegment(Vector(360.392892, 90, 0), Vector(-46.340603, 90, 0)),
    Part.LineSegment(Vector(-46.340603, 90, 0), Vector(-46.340603, 98.5, 0)),
    Part.LineSegment(Vector(-46.340603, 98.5, 0), Vector(360.392892, 98.5, 0)),
    Part.LineSegment(Vector(360.392892, 98.5, 0), Vector(360.392892, 90, 0)),
], False)
sketch8.addConstraint([
    Sketcher.Constraint("Coincident", 0, 2, 1, 1),
    Sketcher.Constraint("Coincident", 1, 2, 2, 1),
    Sketcher.Constraint("Coincident", 2, 2, 3, 1),
    Sketcher.Constraint("Coincident", 3, 2, 0, 1),
    Sketcher.Constraint("Horizontal", 0),
    Sketcher.Constraint("Vertical", 1),
    Sketcher.Constraint("Horizontal", 2),
    Sketcher.Constraint("Vertical", 3),
    Sketcher.Constraint("DistanceY", 1, 1, 1, 2, Q("8.5 mm")),
    Sketcher.Constraint("DistanceY", -1, 1, 0, 2, Q("90 mm")),
    Sketcher.Constraint("DistanceX", 0, 2, 0, 1, Q("406.733495 mm")),
    Sketcher.Constraint("DistanceX", 0, 2, -1, 1, Q("46.340603 mm")),
])
sketch8.setExpression("Constraints[8]", "Params.sketch8_height")
pocket7 = body.newObject("PartDesign::Pocket", "Pocket006")
pocket7.Profile = sketch8
pocket7.setExpression("Length", "Params.pocket7_length")
pocket7.Reversed = True

# Sketch on an angled plane
sketch9 = body.newObject("Sketcher::SketchObject", "Sketch008")
sketch9.Placement = App.Placement(Vector(150.324049, 150.324049, 0), App.Rotation(Vector(0, 0, 1), Vector(-0.707106781, 0.707106781, 0), Vector(-0.707106781, -0.707106781, 0), "ZXY"))
sketch9.addGeometry([
    Part.LineSegment(Vector(90, 652.45852, 0), Vector(90, 293.146979, 0)),
    Part.LineSegment(Vector(90, 293.146979, 0), Vector(98.5, 293.146979, 0)),
    Part.LineSegment(Vector(98.5, 293.146979, 0), Vector(98.5, 652.45852, 0)),
    Part.LineSegment(Vector(98.5, 652.45852, 0), Vector(90, 652.45852, 0)),
], False)
sketch9.addConstraint([
    Sketcher.Constraint("Coincident", 0, 2, 1, 1),
    Sketcher.Constraint("Coincident", 1, 2, 2, 1),
    Sketcher.Constraint("Coincident", 2, 2, 3, 1),
    Sketcher.Constraint("Coincident", 3, 2, 0, 1),
    Sketcher.Constraint("Vertical", 0),
    Sketcher.Constraint("Horizontal", 1),
    Sketcher.Constraint("Vertical", 2),
    Sketcher.Constraint("Horizontal", 3),
    Sketcher.Constraint("DistanceX", 1, 1, 1, 2, Q("8.5 mm")),
    Sketcher.Constraint("DistanceX", -1, 1, 0, 2, Q("90 mm")),
    Sketcher.Constraint("DistanceY", 0, 2, 0, 1, Q("359.311541 mm")),
    Sketcher.Constraint("DistanceY", -1, 1, 0, 2, Q("293.146979 mm")),
])
sketch9.setExpression("Constraints[8]", "Params.sketch9_width")
pocket8 = body.newObject("PartDesign::Pocket", "Pocket007")
pocket8.Profile = sketch9
pocket8.setExpression("Length", "Params.pocket8_length")

doc.recompute()
